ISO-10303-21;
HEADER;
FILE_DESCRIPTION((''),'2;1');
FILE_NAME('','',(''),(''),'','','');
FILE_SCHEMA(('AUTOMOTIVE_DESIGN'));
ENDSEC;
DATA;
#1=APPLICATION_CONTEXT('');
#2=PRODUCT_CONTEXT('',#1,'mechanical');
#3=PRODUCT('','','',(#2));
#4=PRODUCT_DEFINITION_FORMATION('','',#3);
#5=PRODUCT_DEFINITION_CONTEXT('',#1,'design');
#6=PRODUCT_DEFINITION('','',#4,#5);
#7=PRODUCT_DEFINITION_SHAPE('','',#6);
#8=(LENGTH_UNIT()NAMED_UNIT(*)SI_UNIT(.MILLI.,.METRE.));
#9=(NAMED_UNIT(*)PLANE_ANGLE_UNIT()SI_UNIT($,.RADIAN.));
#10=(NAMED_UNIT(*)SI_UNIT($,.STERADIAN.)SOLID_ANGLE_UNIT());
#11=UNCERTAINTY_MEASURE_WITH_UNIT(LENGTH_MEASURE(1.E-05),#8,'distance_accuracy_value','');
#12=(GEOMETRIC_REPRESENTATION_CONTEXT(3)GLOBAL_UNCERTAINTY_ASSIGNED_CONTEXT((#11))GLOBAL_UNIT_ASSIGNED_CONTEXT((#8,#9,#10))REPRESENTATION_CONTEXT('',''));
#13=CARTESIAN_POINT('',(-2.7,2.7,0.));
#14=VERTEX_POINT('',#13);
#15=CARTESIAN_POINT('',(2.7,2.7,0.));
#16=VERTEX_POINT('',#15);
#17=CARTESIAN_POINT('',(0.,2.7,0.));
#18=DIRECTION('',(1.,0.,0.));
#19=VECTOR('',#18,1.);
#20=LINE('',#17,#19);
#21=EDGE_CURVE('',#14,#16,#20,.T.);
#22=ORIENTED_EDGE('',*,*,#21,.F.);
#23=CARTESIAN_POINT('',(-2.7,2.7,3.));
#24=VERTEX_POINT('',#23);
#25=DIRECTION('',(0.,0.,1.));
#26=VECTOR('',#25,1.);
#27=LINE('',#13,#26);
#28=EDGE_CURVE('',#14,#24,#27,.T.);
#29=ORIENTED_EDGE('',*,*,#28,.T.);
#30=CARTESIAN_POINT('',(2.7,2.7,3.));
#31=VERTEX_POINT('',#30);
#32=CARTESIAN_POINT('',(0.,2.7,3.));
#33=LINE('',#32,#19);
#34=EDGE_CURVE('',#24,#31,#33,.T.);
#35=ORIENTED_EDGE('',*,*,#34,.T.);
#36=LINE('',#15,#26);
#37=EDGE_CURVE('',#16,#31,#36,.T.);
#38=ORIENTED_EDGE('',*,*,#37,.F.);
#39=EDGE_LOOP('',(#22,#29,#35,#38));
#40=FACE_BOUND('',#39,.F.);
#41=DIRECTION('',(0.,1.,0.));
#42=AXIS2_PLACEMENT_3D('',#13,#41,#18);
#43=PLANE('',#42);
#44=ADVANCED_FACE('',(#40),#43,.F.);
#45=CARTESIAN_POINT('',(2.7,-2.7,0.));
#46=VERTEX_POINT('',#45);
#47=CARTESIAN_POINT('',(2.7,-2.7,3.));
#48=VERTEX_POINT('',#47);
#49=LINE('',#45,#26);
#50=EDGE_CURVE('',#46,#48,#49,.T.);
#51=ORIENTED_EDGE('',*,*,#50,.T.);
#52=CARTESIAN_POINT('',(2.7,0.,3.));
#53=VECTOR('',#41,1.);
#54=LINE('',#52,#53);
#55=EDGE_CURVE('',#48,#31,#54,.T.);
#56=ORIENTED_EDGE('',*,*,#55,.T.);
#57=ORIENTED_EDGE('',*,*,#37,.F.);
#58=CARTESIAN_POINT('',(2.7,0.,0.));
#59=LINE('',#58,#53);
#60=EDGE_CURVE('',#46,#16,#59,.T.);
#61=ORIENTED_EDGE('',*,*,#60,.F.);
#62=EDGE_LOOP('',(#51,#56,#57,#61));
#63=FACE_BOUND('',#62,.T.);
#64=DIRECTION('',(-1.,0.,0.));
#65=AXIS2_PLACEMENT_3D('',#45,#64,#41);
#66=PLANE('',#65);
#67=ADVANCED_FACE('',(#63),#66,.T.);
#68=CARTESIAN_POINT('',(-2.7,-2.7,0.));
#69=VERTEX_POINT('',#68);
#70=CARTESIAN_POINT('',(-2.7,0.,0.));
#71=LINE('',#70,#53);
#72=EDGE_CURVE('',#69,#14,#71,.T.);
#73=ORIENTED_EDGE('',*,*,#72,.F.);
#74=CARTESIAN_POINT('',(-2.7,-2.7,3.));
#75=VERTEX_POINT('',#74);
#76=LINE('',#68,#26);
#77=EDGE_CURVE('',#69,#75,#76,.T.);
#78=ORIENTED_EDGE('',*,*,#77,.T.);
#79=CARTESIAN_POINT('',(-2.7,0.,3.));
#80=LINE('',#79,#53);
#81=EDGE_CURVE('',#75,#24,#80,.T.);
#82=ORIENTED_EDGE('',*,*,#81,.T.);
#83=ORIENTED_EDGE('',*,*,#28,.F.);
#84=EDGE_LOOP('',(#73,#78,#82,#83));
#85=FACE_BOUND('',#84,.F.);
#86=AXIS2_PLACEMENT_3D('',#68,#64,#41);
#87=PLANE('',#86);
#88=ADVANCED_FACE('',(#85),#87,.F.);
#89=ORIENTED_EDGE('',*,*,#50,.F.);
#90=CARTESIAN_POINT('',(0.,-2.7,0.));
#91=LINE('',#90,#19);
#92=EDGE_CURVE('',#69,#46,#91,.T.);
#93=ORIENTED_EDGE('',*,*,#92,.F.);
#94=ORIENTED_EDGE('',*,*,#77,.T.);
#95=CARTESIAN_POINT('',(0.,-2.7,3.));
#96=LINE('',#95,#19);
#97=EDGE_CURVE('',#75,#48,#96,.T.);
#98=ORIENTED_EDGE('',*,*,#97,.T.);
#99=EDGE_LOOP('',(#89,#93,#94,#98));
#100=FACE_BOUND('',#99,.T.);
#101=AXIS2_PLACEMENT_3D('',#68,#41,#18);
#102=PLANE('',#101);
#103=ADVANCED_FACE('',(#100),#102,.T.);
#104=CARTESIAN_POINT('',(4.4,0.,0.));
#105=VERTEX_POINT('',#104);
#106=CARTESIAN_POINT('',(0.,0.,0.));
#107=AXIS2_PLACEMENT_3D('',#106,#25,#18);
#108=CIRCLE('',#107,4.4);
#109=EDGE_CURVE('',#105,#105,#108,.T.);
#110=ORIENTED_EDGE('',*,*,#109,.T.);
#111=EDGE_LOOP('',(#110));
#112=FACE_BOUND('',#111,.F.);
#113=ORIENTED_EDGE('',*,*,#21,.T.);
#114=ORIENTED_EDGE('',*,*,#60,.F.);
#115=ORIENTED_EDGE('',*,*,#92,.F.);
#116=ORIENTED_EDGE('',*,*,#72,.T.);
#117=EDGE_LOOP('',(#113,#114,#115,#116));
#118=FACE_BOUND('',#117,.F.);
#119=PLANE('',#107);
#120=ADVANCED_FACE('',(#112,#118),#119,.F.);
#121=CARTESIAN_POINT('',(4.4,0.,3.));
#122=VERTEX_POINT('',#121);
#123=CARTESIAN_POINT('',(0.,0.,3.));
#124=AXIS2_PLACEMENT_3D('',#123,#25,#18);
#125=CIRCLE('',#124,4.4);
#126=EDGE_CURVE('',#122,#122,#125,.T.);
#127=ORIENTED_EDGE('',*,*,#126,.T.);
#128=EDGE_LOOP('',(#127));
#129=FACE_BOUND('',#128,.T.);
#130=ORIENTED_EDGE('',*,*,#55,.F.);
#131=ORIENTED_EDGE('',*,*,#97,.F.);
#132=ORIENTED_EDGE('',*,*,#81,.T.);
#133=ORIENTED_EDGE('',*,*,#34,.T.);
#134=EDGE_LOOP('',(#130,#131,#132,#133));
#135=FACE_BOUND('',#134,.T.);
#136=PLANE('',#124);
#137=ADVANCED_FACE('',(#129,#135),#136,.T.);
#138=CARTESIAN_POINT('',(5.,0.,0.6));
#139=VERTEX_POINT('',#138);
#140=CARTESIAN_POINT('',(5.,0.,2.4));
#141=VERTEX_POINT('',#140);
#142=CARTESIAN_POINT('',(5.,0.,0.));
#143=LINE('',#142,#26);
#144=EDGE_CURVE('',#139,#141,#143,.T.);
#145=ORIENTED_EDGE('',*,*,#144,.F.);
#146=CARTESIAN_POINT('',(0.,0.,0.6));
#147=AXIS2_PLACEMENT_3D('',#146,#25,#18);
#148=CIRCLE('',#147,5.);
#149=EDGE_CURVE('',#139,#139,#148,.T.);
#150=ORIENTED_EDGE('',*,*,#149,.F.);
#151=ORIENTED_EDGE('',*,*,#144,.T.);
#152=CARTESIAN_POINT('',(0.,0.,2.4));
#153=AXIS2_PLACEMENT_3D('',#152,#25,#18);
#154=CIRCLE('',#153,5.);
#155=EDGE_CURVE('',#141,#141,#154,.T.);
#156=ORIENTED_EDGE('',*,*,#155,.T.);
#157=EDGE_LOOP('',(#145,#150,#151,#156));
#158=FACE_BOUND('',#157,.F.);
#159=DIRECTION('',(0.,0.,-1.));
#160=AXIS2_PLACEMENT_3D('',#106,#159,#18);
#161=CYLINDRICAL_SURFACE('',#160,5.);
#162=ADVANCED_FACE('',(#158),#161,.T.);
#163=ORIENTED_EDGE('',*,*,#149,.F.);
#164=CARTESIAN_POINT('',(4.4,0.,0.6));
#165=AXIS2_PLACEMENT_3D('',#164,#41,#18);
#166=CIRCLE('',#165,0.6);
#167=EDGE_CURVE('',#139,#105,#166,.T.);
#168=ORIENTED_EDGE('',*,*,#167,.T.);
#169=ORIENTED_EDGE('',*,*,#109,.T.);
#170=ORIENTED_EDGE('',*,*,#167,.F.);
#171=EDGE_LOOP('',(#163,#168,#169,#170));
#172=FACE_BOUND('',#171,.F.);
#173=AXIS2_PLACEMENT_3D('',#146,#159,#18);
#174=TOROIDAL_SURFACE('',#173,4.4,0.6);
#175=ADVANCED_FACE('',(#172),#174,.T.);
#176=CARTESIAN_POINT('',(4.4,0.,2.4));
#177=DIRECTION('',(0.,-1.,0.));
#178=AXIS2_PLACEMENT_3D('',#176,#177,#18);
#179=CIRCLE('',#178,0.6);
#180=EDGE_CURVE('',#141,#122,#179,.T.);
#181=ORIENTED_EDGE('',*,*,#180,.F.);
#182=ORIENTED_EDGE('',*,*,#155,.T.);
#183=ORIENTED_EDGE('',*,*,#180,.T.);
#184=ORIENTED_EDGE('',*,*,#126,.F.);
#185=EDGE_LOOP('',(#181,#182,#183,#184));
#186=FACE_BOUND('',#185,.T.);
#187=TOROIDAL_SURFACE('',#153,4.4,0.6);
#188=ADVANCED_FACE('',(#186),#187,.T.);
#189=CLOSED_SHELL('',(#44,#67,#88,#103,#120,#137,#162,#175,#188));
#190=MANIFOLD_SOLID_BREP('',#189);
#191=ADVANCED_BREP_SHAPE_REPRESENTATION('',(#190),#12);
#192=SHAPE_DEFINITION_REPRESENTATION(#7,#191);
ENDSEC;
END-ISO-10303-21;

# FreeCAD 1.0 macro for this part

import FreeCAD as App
import Part
import Sketcher


def edges_at(feature, points):
    """Names of the edges that pass closest to the given points."""
    edges = feature.Shape.Edges
    near = lambda p: min(range(len(edges)), key=lambda i: edges[i].distToShape(Part.Vertex(*p))[0])
    return sorted({f"Edge{near(p) + 1}" for p in points})

doc = App.newDocument("Part")
params = doc.addObject("Spreadsheet::Sheet", "Params")
for row, (alias, value) in enumerate([
    ("sketch1_diameter", "10 mm"),
    ("sketch1_width", "5.4 mm"),
    ("pad1_length", "3 mm"),
    ("fillet_radius", "0.6 mm"),
], start=1):
    params.set(f"A{row}", alias)
    params.set(f"B{row}", "=" + value)
    params.setAlias(f"B{row}", alias)

body = doc.addObject("PartDesign::Body", "Body")

# Sketch on XY plane
sketch1 = body.newObject("Sketcher::SketchObject", "Sketch")
sketch1.AttachmentSupport = (doc.getObject("XY_Plane"), [""])
sketch1.MapMode = "FlatFace"
sketch1.addGeometry(Part.Circle(App.Vector(0, 0, 0), App.Vector(0, 0, 1), 5), False)
sketch1.addGeometry(Part.LineSegment(App.Vector(3, -3, 0), App.Vector(-3, -3, 0)), False)
sketch1.addGeometry(Part.LineSegment(App.Vector(-3, -3, 0), App.Vector(-3, 3, 0)), False)
sketch1.addGeometry(Part.LineSegment(App.Vector(-3, 3, 0), App.Vector(3, 3, 0)), False)
sketch1.addGeometry(Part.LineSegment(App.Vector(3, 3, 0), App.Vector(3, -3, 0)), False)
sketch1.addConstraint(Sketcher.Constraint("Coincident", 1, 2, 2, 1))
sketch1.addConstraint(Sketcher.Constraint("Coincident", 2, 2, 3, 1))
sketch1.addConstraint(Sketcher.Constraint("Coincident", 3, 2, 4, 1))
sketch1.addConstraint(Sketcher.Constraint("Coincident", 4, 2, 1, 1))
sketch1.addConstraint(Sketcher.Constraint("Horizontal", 1))
sketch1.addConstraint(Sketcher.Constraint("Vertical", 2))
sketch1.addConstraint(Sketcher.Constraint("Horizontal", 3))
sketch1.addConstraint(Sketcher.Constraint("Vertical", 4))
sketch1.addConstraint(Sketcher.Constraint("Coincident", 0, 3, -1, 1))
sketch1.addConstraint(Sketcher.Constraint("Symmetric", 1, 2, 3, 2, -1, 1))
sketch1.addConstraint(Sketcher.Constraint("Equal", 3, 2))
sketch1.addConstraint(Sketcher.Constraint("Diameter", 0, 10.0))
sketch1.addConstraint(Sketcher.Constraint("DistanceX", 1, 2, 1, 1, 5.4))
sketch1.setExpression("Constraints[11]", "Params.sketch1_diameter")
sketch1.setExpression("Constraints[12]", "Params.sketch1_width")
pad1 = body.newObject("PartDesign::Pad", "Pad")
pad1.Profile = sketch1
pad1.setExpression("Length", "Params.pad1_length")
doc.recompute()

fillet = body.newObject("PartDesign::Fillet", "Fillet")
fillet.Base = (pad1, edges_at(pad1, [(5, 0, 1.5), (-5, 0, 0), (-5, 0, 3)]))
fillet.setExpression("Radius", "Params.fillet_radius")

doc.recompute()
